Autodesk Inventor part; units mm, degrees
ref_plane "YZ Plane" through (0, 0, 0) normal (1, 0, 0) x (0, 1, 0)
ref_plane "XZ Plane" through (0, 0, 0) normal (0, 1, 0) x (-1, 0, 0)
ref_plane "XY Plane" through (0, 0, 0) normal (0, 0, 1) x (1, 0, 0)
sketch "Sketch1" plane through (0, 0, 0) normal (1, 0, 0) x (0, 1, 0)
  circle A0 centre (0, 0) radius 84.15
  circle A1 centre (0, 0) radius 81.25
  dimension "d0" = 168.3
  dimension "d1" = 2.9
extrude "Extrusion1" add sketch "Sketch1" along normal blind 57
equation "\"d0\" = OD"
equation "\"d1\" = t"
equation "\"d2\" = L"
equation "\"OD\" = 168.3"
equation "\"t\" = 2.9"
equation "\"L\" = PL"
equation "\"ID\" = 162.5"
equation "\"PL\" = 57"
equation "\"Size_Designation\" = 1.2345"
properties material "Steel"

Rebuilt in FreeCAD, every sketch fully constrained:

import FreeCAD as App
import Part
import Sketcher
Q = App.Units.Quantity

doc = App.newDocument("Part")
body = doc.addObject("PartDesign::Body", "Body")

# Sketch on YZ plane
sketch1 = body.newObject("Sketcher::SketchObject", "Sketch")
sketch1.AttachmentSupport = (doc.getObject("YZ_Plane"), [""])
sketch1.MapMode = "FlatFace"
sketch1.addGeometry(Part.Circle(App.Vector(0, 0, 0), App.Vector(0, 0, 1), 84), False)
sketch1.addGeometry(Part.Circle(App.Vector(0, 0, 0), App.Vector(0, 0, 1), 81), False)
sketch1.addConstraint(Sketcher.Constraint("Coincident", 0, 3, -1, 1))
sketch1.addConstraint(Sketcher.Constraint("Coincident", 1, 3, -1, 1))
sketch1.addConstraint(Sketcher.Constraint("Diameter", 0, Q("168.3 mm")))
sketch1.addConstraint(Sketcher.Constraint("Diameter", 1, Q("162.5 mm")))
pad1 = body.newObject("PartDesign::Pad", "Pad")
pad1.Profile = sketch1
pad1.Length = 57

doc.recompute()
